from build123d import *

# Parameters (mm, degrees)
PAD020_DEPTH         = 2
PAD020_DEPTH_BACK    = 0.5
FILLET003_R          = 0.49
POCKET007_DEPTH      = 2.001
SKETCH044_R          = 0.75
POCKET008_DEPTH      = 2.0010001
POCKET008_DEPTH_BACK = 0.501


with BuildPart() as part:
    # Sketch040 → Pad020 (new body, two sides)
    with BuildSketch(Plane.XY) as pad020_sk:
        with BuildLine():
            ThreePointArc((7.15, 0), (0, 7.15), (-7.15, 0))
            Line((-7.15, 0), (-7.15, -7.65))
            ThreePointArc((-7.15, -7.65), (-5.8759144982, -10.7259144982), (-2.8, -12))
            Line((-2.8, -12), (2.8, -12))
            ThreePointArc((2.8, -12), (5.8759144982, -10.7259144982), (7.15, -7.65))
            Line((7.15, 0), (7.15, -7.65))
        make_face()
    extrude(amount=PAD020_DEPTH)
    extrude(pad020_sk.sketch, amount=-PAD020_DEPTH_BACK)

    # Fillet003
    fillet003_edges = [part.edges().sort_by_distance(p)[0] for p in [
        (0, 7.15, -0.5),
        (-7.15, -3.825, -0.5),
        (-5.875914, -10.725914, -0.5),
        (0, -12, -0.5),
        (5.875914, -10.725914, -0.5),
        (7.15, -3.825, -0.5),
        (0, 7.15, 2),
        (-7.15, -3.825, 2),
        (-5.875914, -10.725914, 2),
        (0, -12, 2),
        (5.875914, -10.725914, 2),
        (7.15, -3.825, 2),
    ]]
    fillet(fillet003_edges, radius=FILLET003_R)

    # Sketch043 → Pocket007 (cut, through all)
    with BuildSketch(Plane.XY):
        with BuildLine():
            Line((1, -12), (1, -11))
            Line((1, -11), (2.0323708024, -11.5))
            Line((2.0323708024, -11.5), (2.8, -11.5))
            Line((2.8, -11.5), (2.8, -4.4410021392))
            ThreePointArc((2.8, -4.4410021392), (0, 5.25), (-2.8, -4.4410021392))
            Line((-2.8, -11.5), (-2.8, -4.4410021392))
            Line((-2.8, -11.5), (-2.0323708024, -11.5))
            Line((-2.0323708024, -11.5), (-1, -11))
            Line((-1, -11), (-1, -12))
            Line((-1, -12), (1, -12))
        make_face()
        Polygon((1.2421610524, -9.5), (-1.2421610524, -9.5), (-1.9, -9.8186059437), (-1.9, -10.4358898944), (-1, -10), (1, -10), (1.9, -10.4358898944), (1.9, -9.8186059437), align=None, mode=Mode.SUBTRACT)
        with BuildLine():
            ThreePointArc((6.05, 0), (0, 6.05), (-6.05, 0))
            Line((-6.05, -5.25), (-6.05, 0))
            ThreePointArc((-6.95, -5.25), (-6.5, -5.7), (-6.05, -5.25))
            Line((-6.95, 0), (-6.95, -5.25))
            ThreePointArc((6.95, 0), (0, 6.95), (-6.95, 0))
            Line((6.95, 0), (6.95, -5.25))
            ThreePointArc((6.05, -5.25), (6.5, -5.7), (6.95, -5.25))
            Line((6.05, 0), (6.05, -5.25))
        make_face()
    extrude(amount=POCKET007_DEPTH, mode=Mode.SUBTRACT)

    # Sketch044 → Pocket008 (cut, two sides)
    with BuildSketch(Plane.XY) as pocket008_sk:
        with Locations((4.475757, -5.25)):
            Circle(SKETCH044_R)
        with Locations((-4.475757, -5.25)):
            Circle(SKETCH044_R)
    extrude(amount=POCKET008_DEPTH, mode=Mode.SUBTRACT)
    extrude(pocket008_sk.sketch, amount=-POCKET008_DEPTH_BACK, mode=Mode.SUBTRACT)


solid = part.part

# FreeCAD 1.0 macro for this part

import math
import FreeCAD as App
import Part
import Sketcher
from FreeCAD import Vector
Q = App.Units.Quantity


def edges_at(feature, points):
    """Names of the edges that pass closest to the given points."""
    edges = feature.Shape.Edges
    near = lambda p: min(range(len(edges)), key=lambda i: edges[i].distToShape(Part.Vertex(*p))[0])
    return sorted({f"Edge{near(p) + 1}" for p in points})

doc = App.newDocument("Part")
body = doc.addObject("PartDesign::Body", "Body")

# Sketch on XY plane
sketch1 = body.newObject("Sketcher::SketchObject", "Sketch")
sketch1.AttachmentSupport = (doc.getObject("XY_Plane"), [""])
sketch1.MapMode = "FlatFace"
sketch1.addGeometry([
    Part.ArcOfCircle(Part.Circle(Vector(0, 0, 0), Vector(0, 0, 1), 7.15), math.radians(0), math.radians(180)),  # 0
    Part.LineSegment(Vector(-7.15, 0, 0), Vector(-7.15, -7.65, 0)),  # 1
    Part.ArcOfCircle(Part.Circle(Vector(-2.8, -7.65, 0), Vector(0, 0, 1), 4.35), math.radians(180), math.radians(270)),  # 2
    Part.LineSegment(Vector(-2.8, -12, 0), Vector(2.8, -12, 0)),  # 3
    Part.ArcOfCircle(Part.Circle(Vector(2.8, -7.65, 0), Vector(0, 0, 1), 4.35), math.radians(-90), math.radians(0)),  # 4
    Part.LineSegment(Vector(7.15, -7.65, 0), Vector(7.15, 0, 0)),  # 5
], False)
sketch1.addConstraint([
    Sketcher.Constraint("Tangent", 0, 2, 1, 1),
    Sketcher.Constraint("Tangent", 1, 2, 2, 1),
    Sketcher.Constraint("Tangent", 2, 2, 3, 1),
    Sketcher.Constraint("Tangent", 3, 2, 4, 1),
    Sketcher.Constraint("Tangent", 4, 2, 5, 1),
    Sketcher.Constraint("Tangent", 5, 2, 0, 1),
    Sketcher.Constraint("Vertical", 1),
    Sketcher.Constraint("Horizontal", 3),
    Sketcher.Constraint("Vertical", 5),
    Sketcher.Constraint("Coincident", 0, 3, -1, 1),
    Sketcher.Constraint("Equal", 2, 4),
    Sketcher.Constraint("Radius", 0, Q("7.15 mm")),
    Sketcher.Constraint("Radius", 2, Q("4.35 mm")),
    Sketcher.Constraint("DistanceY", 2, 2, -1, 1, Q("12 mm")),
])
pad1 = body.newObject("PartDesign::Pad", "Pad")
pad1.Profile = sketch1
pad1.Type = "TwoLengths"
pad1.Length = 2
pad1.Length2 = 0.5
doc.recompute()

fillet = body.newObject("PartDesign::Fillet", "Fillet")
fillet.Base = (pad1, edges_at(pad1, [
    (0, 7.15, -0.5),
    (-7.15, -3.825, -0.5),
    (-5.876, -10.726, -0.5),
    (0, -12, -0.5),
    (5.876, -10.726, -0.5),
    (7.15, -3.825, -0.5),
    (0, 7.15, 2),
    (-7.15, -3.825, 2),
    (-5.876, -10.726, 2),
    (0, -12, 2),
    (5.876, -10.726, 2),
    (7.15, -3.825, 2),
]))
fillet.Radius = 0.49

# Sketch on XY plane
sketch2 = body.newObject("Sketcher::SketchObject", "Sketch001")
sketch2.AttachmentSupport = (doc.getObject("XY_Plane"), [""])
sketch2.MapMode = "FlatFace"
sketch2.addGeometry([
    Part.LineSegment(Vector(1, -12, 0), Vector(1, -11, 0)),  # 0
    Part.LineSegment(Vector(1, -11, 0), Vector(2.032371, -11.5, 0)),  # 1
    Part.LineSegment(Vector(2.032371, -11.5, 0), Vector(2.8, -11.5, 0)),  # 2
    Part.LineSegment(Vector(2.8, -11.5, 0), Vector(2.8, -4.441002, 0)),  # 3
    Part.ArcOfCircle(Part.Circle(Vector(0, 0, 0), Vector(0, 0, 1), 5.25), math.radians(-57.769047), math.radians(237.769047)),  # 4
    Part.LineSegment(Vector(-2.8, -4.441002, 0), Vector(-2.8, -11.5, 0)),  # 5
    Part.LineSegment(Vector(-2.8, -11.5, 0), Vector(-2.032371, -11.5, 0)),  # 6
    Part.LineSegment(Vector(-2.032371, -11.5, 0), Vector(-1, -11, 0)),  # 7
    Part.LineSegment(Vector(-1, -11, 0), Vector(-1, -12, 0)),  # 8
    Part.LineSegment(Vector(-1, -12, 0), Vector(1, -12, 0)),  # 9
    Part.LineSegment(Vector(-1.242161, -9.5, 0), Vector(1.242161, -9.5, 0)),  # 10
    Part.LineSegment(Vector(1.242161, -9.5, 0), Vector(1.9, -9.818606, 0)),  # 11
    Part.LineSegment(Vector(1.9, -9.818606, 0), Vector(1.9, -10.43589, 0)),  # 12
    Part.LineSegment(Vector(1.9, -10.43589, 0), Vector(1, -10, 0)),  # 13
    Part.LineSegment(Vector(1, -10, 0), Vector(-1, -10, 0)),  # 14
    Part.LineSegment(Vector(-1, -10, 0), Vector(-1.9, -10.43589, 0)),  # 15
    Part.LineSegment(Vector(-1.9, -10.43589, 0), Vector(-1.9, -9.818606, 0)),  # 16
    Part.LineSegment(Vector(-1.9, -9.818606, 0), Vector(-1.242161, -9.5, 0)),  # 17
    Part.ArcOfCircle(Part.Circle(Vector(0, 0, 0), Vector(0, 0, 1), 6.05), math.radians(0), math.radians(180)),  # 18
    Part.LineSegment(Vector(6.05, 0, 0), Vector(6.05, -5.25, 0)),  # 19
    Part.ArcOfCircle(Part.Circle(Vector(6.5, -5.25, 0), Vector(0, 0, 1), 0.45), math.radians(180), math.radians(360)),  # 20
    Part.LineSegment(Vector(6.95, -5.25, 0), Vector(6.95, 0, 0)),  # 21
    Part.ArcOfCircle(Part.Circle(Vector(0, 0, 0), Vector(0, 0, 1), 6.95), math.radians(0), math.radians(180)),  # 22
    Part.LineSegment(Vector(-6.95, 0, 0), Vector(-6.95, -5.25, 0)),  # 23
    Part.ArcOfCircle(Part.Circle(Vector(-6.5, -5.25, 0), Vector(0, 0, 1), 0.45), math.radians(180), math.radians(360)),  # 24
    Part.LineSegment(Vector(-6.05, -5.25, 0), Vector(-6.05, 0, 0)),  # 25
], False)
sketch2.addConstraint([
    Sketcher.Constraint("Coincident", 0, 2, 1, 1),
    Sketcher.Constraint("Coincident", 1, 2, 2, 1),
    Sketcher.Constraint("Coincident", 2, 2, 3, 1),
    Sketcher.Constraint("Coincident", 3, 2, 4, 1),
    Sketcher.Constraint("Coincident", 4, 2, 5, 1),
    Sketcher.Constraint("Coincident", 5, 2, 6, 1),
    Sketcher.Constraint("Coincident", 6, 2, 7, 1),
    Sketcher.Constraint("Coincident", 7, 2, 8, 1),
    Sketcher.Constraint("Coincident", 8, 2, 9, 1),
    Sketcher.Constraint("Coincident", 9, 2, 0, 1),
    Sketcher.Constraint("Coincident", 10, 2, 11, 1),
    Sketcher.Constraint("Coincident", 11, 2, 12, 1),
    Sketcher.Constraint("Coincident", 12, 2, 13, 1),
    Sketcher.Constraint("Coincident", 13, 2, 14, 1),
    Sketcher.Constraint("Coincident", 14, 2, 15, 1),
    Sketcher.Constraint("Coincident", 15, 2, 16, 1),
    Sketcher.Constraint("Coincident", 16, 2, 17, 1),
    Sketcher.Constraint("Coincident", 17, 2, 10, 1),
    Sketcher.Constraint("Tangent", 18, 1, 19, 1),
    Sketcher.Constraint("Tangent", 19, 2, 20, 1),
    Sketcher.Constraint("Tangent", 20, 2, 21, 1),
    Sketcher.Constraint("Tangent", 21, 2, 22, 1),
    Sketcher.Constraint("Tangent", 22, 2, 23, 1),
    Sketcher.Constraint("Tangent", 23, 2, 24, 1),
    Sketcher.Constraint("Tangent", 24, 2, 25, 1),
    Sketcher.Constraint("Tangent", 25, 2, 18, 2),
    Sketcher.Constraint("Vertical", 0),
    Sketcher.Constraint("Horizontal", 2),
    Sketcher.Constraint("Vertical", 3),
    Sketcher.Constraint("Vertical", 5),
    Sketcher.Constraint("Horizontal", 6),
    Sketcher.Constraint("Vertical", 8),
    Sketcher.Constraint("Horizontal", 9),
    Sketcher.Constraint("Horizontal", 10),
    Sketcher.Constraint("Vertical", 12),
    Sketcher.Constraint("Horizontal", 14),
    Sketcher.Constraint("Vertical", 16),
    Sketcher.Constraint("Vertical", 19),
    Sketcher.Constraint("Vertical", 21),
    Sketcher.Constraint("Vertical", 23),
    Sketcher.Constraint("Vertical", 25),
    Sketcher.Constraint("Coincident", 4, 3, -1, 1),
    Sketcher.Constraint("Coincident", 18, 3, -1, 1),
    Sketcher.Constraint("Coincident", 22, 3, -1, 1),
    Sketcher.Constraint("Symmetric", 2, 2, 5, 2, -2),
    Sketcher.Constraint("Symmetric", 0, 2, 7, 2, -2),
    Sketcher.Constraint("Symmetric", 12, 2, 15, 2, -2),
    Sketcher.Constraint("Parallel", 1, 11),
    Sketcher.Constraint("Parallel", 11, 13),
    Sketcher.Constraint("Parallel", 7, 15),
    Sketcher.Constraint("Parallel", 15, 17),
    Sketcher.Constraint("Horizontal", 20, 3, 24, 3),
    Sketcher.Constraint("Horizontal", 11, 2, 16, 2),
    Sketcher.Constraint("Vertical", 9, 2, 13, 2),
    Sketcher.Constraint("Vertical", 8, 2, 14, 2),
    Sketcher.Constraint("DistanceX", 9, 1, 9, 2, Q("2 mm")),
    Sketcher.Constraint("DistanceY", 0, 1, 0, 2, Q("1 mm")),
    Sketcher.Constraint("Radius", 4, Q("5.25 mm")),
    Sketcher.Constraint("Radius", 18, Q("6.05 mm")),
    Sketcher.Constraint("Radius", 20, Q("0.45 mm")),
    Sketcher.Constraint("Distance", 13, Q("1 mm")),
    Sketcher.Constraint("DistanceY", 0, 2, -1, 1, Q("11 mm")),
    Sketcher.Constraint("DistanceY", 13, 2, -1, 1, Q("10 mm")),
    Sketcher.Constraint("DistanceY", 1, 2, 10, 2, Q("2 mm")),
    Sketcher.Constraint("DistanceY", 19, 2, 19, 1, Q("5.25 mm")),
    Sketcher.Constraint("DistanceY", 1, 2, -1, 1, Q("11.5 mm")),
    Sketcher.Constraint("DistanceX", -1, 1, 2, 2, Q("2.8 mm")),
    Sketcher.Constraint("DistanceX", -1, 1, 11, 2, Q("1.9 mm")),
    Sketcher.Constraint("DistanceX", 10, 1, 10, 2, Q("2.484322 mm")),
])
pocket1 = body.newObject("PartDesign::Pocket", "Pocket")
pocket1.Profile = sketch2
pocket1.Type = "ThroughAll"
pocket1.Reversed = True

# Sketch on XY plane
sketch3 = body.newObject("Sketcher::SketchObject", "Sketch002")
sketch3.AttachmentSupport = (doc.getObject("XY_Plane"), [""])
sketch3.MapMode = "FlatFace"
sketch3.addGeometry([
    Part.Circle(Vector(4.475757, -5.25, 0), Vector(0, 0, 1), 0.75),
    Part.Circle(Vector(-4.475757, -5.25, 0), Vector(0, 0, 1), 0.75),
], False)
sketch3.addConstraint([
    Sketcher.Constraint("Equal", 0, 1),
    Sketcher.Constraint("Symmetric", 0, 3, 1, 3, -2),
    Sketcher.Constraint("Diameter", 0, Q("1.5 mm")),
    Sketcher.Constraint("DistanceY", 0, 3, -1, 1, Q("5.25 mm")),
    Sketcher.Constraint("DistanceX", -1, 1, 0, 3, Q("4.475757 mm")),
])
pocket2 = body.newObject("PartDesign::Pocket", "Pocket001")
pocket2.Profile = sketch3
pocket2.Type = "ThroughAll"
pocket2.Midplane = True

doc.recompute()
